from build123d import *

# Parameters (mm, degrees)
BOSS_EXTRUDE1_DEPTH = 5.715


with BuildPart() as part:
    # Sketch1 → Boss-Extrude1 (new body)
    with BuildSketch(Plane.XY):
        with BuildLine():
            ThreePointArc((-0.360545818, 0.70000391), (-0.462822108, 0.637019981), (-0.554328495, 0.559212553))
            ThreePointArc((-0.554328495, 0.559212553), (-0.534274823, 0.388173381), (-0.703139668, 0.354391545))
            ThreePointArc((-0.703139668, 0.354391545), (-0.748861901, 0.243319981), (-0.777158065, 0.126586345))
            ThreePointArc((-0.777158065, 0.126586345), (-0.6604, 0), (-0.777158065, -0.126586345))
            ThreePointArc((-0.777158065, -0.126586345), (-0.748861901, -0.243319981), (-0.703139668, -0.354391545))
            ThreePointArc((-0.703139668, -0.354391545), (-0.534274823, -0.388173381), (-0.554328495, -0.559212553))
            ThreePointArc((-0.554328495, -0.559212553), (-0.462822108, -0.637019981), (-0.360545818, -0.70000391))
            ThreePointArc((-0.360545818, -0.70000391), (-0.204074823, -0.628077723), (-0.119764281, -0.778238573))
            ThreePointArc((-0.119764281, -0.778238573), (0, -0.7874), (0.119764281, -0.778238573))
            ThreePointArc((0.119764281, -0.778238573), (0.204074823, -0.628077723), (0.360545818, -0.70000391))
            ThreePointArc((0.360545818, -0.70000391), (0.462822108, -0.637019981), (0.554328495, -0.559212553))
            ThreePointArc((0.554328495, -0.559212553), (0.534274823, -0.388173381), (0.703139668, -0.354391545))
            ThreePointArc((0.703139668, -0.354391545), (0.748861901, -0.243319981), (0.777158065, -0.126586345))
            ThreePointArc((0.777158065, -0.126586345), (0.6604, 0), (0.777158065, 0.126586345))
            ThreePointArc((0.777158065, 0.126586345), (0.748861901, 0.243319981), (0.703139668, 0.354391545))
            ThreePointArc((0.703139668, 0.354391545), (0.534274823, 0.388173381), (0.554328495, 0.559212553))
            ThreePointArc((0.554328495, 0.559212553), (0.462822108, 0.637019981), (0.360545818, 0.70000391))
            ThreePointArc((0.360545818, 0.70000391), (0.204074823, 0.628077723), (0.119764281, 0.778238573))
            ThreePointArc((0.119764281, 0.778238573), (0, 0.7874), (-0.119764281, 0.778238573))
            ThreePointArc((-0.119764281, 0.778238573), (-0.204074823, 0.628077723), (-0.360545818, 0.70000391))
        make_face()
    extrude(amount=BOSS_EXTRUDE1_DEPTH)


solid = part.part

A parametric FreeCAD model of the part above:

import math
import FreeCAD as App
import Part
import Sketcher
from FreeCAD import Vector
Q = App.Units.Quantity

doc = App.newDocument("Part")
body = doc.addObject("PartDesign::Body", "Body")

sketch1 = body.newObject("Sketcher::SketchObject", "Sketch")
sketch1.AttachmentSupport = (doc.getObject("XY_Plane"), [""])
sketch1.MapMode = "FlatFace"
sketch1.addGeometry([
    Part.ArcOfCircle(Part.Circle(Vector(0, 0, 0), Vector(0, 0, 1), 0.79), math.radians(117.25), math.radians(134.75)),
    Part.ArcOfCircle(Part.Circle(Vector(-0.64, 0.46, 0), Vector(0, 0, 1), 0.13), math.radians(-121), math.radians(49)),
    Part.ArcOfCircle(Part.Circle(Vector(0, 0, 0), Vector(0, 0, 1), 0.79), math.radians(153.25), math.radians(170.75)),
    Part.ArcOfCircle(Part.Circle(Vector(-0.79, 0, 0), Vector(0, 0, 1), 0.13), math.radians(-85), math.radians(85)),
    Part.ArcOfCircle(Part.Circle(Vector(0, 0, 0), Vector(0, 0, 1), 0.79), math.radians(-170.75), math.radians(-153.25)),
    Part.ArcOfCircle(Part.Circle(Vector(-0.64, -0.46, 0), Vector(0, 0, 1), 0.13), math.radians(-49), math.radians(121)),
    Part.ArcOfCircle(Part.Circle(Vector(0, 0, 0), Vector(0, 0, 1), 0.79), math.radians(-134.75), math.radians(-117.25)),
    Part.ArcOfCircle(Part.Circle(Vector(-0.24, -0.75, 0), Vector(0, 0, 1), 0.13), math.radians(-13), math.radians(157)),
    Part.ArcOfCircle(Part.Circle(Vector(0, 0, 0), Vector(0, 0, 1), 0.79), math.radians(-98.75), math.radians(-81.25)),
    Part.ArcOfCircle(Part.Circle(Vector(0.24, -0.75, 0), Vector(0, 0, 1), 0.13), math.radians(23), math.radians(193)),
    Part.ArcOfCircle(Part.Circle(Vector(0, 0, 0), Vector(0, 0, 1), 0.79), math.radians(-62.75), math.radians(-45.25)),
    Part.ArcOfCircle(Part.Circle(Vector(0.64, -0.46, 0), Vector(0, 0, 1), 0.13), math.radians(59), math.radians(229)),
    Part.ArcOfCircle(Part.Circle(Vector(0, 0, 0), Vector(0, 0, 1), 0.79), math.radians(-26.75), math.radians(-9.25)),
    Part.ArcOfCircle(Part.Circle(Vector(0.79, 0, 0), Vector(0, 0, 1), 0.13), math.radians(95), math.radians(265)),
    Part.ArcOfCircle(Part.Circle(Vector(0, 0, 0), Vector(0, 0, 1), 0.79), math.radians(9.25), math.radians(26.75)),
    Part.ArcOfCircle(Part.Circle(Vector(0.64, 0.46, 0), Vector(0, 0, 1), 0.13), math.radians(131), math.radians(301)),
    Part.ArcOfCircle(Part.Circle(Vector(0, 0, 0), Vector(0, 0, 1), 0.79), math.radians(45.25), math.radians(62.75)),
    Part.ArcOfCircle(Part.Circle(Vector(0.24, 0.75, 0), Vector(0, 0, 1), 0.13), math.radians(167), math.radians(337)),
    Part.ArcOfCircle(Part.Circle(Vector(0, 0, 0), Vector(0, 0, 1), 0.79), math.radians(81.25), math.radians(98.75)),
    Part.ArcOfCircle(Part.Circle(Vector(-0.24, 0.75, 0), Vector(0, 0, 1), 0.13), math.radians(-157), math.radians(13)),
], False)
sketch1.addConstraint([
    Sketcher.Constraint("Coincident", 0, 2, 1, 2),
    Sketcher.Constraint("Coincident", 1, 1, 2, 1),
    Sketcher.Constraint("Coincident", 2, 2, 3, 2),
    Sketcher.Constraint("Coincident", 3, 1, 4, 1),
    Sketcher.Constraint("Coincident", 4, 2, 5, 2),
    Sketcher.Constraint("Coincident", 5, 1, 6, 1),
    Sketcher.Constraint("Coincident", 6, 2, 7, 2),
    Sketcher.Constraint("Coincident", 7, 1, 8, 1),
    Sketcher.Constraint("Coincident", 8, 2, 9, 2),
    Sketcher.Constraint("Coincident", 9, 1, 10, 1),
    Sketcher.Constraint("Coincident", 10, 2, 11, 2),
    Sketcher.Constraint("Coincident", 11, 1, 12, 1),
    Sketcher.Constraint("Coincident", 12, 2, 13, 2),
    Sketcher.Constraint("Coincident", 13, 1, 14, 1),
    Sketcher.Constraint("Coincident", 14, 2, 15, 2),
    Sketcher.Constraint("Coincident", 15, 1, 16, 1),
    Sketcher.Constraint("Coincident", 16, 2, 17, 2),
    Sketcher.Constraint("Coincident", 17, 1, 18, 1),
    Sketcher.Constraint("Coincident", 18, 2, 19, 2),
    Sketcher.Constraint("Coincident", 19, 1, 0, 1),
    Sketcher.Constraint("Coincident", 0, 3, -1, 1),
    Sketcher.Constraint("Coincident", 2, 3, -1, 1),
    Sketcher.Constraint("Coincident", 4, 3, -1, 1),
    Sketcher.Constraint("Coincident", 6, 3, -1, 1),
    Sketcher.Constraint("Coincident", 8, 3, -1, 1),
    Sketcher.Constraint("Coincident", 10, 3, -1, 1),
    Sketcher.Constraint("Coincident", 12, 3, -1, 1),
    Sketcher.Constraint("Coincident", 14, 3, -1, 1),
    Sketcher.Constraint("Coincident", 16, 3, -1, 1),
    Sketcher.Constraint("Coincident", 18, 3, -1, 1),
    Sketcher.Constraint("Equal", 0, 2),
    Sketcher.Constraint("Equal", 1, 3),
    Sketcher.Constraint("Equal", 2, 4),
    Sketcher.Constraint("Equal", 3, 5),
    Sketcher.Constraint("Equal", 4, 6),
    Sketcher.Constraint("Equal", 5, 7),
    Sketcher.Constraint("Equal", 6, 8),
    Sketcher.Constraint("Equal", 7, 9),
    Sketcher.Constraint("Equal", 8, 10),
    Sketcher.Constraint("Equal", 9, 11),
    Sketcher.Constraint("Equal", 10, 12),
    Sketcher.Constraint("Equal", 11, 13),
    Sketcher.Constraint("Equal", 12, 14),
    Sketcher.Constraint("Equal", 13, 15),
    Sketcher.Constraint("Equal", 14, 16),
    Sketcher.Constraint("Equal", 15, 17),
    Sketcher.Constraint("Equal", 16, 18),
    Sketcher.Constraint("Equal", 17, 19),
    Sketcher.Constraint("Symmetric", 1, 3, 11, 3, -1, 1),
    Sketcher.Constraint("Symmetric", 3, 3, 13, 3, -1, 1),
    Sketcher.Constraint("Symmetric", 5, 3, 15, 3, -1, 1),
    Sketcher.Constraint("Symmetric", 7, 3, 17, 3, -1, 1),
    Sketcher.Constraint("Symmetric", 9, 3, 19, 3, -1, 1),
    Sketcher.Constraint("Symmetric", 7, 3, 9, 3, -2),
    Sketcher.Constraint("Symmetric", 5, 3, 11, 3, -2),
    Sketcher.Constraint("PointOnObject", 3, 3, -1),
    Sketcher.Constraint("Radius", 0, Q("0.031 in")),
    Sketcher.Constraint("Radius", 1, Q("0.005 in")),
    Sketcher.Constraint("DistanceX", 3, 3, -1, 1, Q("0.031 in")),
    Sketcher.Constraint("DistanceX", 5, 3, 7, 3, Q("0.0155 in")),
    Sketcher.Constraint("DistanceX", 1, 3, -1, 1, Q("0.63702 mm")),
    Sketcher.Constraint("DistanceY", 7, 3, -1, 1, Q("0.748862 mm")),
    Sketcher.Constraint("DistanceX", 0, 2, -1, 1, Q("0.554328 mm")),
])
pad1 = body.newObject("PartDesign::Pad", "Pad")
pad1.Profile = sketch1
pad1.Length = Q("0.225 in")

doc.recompute()
